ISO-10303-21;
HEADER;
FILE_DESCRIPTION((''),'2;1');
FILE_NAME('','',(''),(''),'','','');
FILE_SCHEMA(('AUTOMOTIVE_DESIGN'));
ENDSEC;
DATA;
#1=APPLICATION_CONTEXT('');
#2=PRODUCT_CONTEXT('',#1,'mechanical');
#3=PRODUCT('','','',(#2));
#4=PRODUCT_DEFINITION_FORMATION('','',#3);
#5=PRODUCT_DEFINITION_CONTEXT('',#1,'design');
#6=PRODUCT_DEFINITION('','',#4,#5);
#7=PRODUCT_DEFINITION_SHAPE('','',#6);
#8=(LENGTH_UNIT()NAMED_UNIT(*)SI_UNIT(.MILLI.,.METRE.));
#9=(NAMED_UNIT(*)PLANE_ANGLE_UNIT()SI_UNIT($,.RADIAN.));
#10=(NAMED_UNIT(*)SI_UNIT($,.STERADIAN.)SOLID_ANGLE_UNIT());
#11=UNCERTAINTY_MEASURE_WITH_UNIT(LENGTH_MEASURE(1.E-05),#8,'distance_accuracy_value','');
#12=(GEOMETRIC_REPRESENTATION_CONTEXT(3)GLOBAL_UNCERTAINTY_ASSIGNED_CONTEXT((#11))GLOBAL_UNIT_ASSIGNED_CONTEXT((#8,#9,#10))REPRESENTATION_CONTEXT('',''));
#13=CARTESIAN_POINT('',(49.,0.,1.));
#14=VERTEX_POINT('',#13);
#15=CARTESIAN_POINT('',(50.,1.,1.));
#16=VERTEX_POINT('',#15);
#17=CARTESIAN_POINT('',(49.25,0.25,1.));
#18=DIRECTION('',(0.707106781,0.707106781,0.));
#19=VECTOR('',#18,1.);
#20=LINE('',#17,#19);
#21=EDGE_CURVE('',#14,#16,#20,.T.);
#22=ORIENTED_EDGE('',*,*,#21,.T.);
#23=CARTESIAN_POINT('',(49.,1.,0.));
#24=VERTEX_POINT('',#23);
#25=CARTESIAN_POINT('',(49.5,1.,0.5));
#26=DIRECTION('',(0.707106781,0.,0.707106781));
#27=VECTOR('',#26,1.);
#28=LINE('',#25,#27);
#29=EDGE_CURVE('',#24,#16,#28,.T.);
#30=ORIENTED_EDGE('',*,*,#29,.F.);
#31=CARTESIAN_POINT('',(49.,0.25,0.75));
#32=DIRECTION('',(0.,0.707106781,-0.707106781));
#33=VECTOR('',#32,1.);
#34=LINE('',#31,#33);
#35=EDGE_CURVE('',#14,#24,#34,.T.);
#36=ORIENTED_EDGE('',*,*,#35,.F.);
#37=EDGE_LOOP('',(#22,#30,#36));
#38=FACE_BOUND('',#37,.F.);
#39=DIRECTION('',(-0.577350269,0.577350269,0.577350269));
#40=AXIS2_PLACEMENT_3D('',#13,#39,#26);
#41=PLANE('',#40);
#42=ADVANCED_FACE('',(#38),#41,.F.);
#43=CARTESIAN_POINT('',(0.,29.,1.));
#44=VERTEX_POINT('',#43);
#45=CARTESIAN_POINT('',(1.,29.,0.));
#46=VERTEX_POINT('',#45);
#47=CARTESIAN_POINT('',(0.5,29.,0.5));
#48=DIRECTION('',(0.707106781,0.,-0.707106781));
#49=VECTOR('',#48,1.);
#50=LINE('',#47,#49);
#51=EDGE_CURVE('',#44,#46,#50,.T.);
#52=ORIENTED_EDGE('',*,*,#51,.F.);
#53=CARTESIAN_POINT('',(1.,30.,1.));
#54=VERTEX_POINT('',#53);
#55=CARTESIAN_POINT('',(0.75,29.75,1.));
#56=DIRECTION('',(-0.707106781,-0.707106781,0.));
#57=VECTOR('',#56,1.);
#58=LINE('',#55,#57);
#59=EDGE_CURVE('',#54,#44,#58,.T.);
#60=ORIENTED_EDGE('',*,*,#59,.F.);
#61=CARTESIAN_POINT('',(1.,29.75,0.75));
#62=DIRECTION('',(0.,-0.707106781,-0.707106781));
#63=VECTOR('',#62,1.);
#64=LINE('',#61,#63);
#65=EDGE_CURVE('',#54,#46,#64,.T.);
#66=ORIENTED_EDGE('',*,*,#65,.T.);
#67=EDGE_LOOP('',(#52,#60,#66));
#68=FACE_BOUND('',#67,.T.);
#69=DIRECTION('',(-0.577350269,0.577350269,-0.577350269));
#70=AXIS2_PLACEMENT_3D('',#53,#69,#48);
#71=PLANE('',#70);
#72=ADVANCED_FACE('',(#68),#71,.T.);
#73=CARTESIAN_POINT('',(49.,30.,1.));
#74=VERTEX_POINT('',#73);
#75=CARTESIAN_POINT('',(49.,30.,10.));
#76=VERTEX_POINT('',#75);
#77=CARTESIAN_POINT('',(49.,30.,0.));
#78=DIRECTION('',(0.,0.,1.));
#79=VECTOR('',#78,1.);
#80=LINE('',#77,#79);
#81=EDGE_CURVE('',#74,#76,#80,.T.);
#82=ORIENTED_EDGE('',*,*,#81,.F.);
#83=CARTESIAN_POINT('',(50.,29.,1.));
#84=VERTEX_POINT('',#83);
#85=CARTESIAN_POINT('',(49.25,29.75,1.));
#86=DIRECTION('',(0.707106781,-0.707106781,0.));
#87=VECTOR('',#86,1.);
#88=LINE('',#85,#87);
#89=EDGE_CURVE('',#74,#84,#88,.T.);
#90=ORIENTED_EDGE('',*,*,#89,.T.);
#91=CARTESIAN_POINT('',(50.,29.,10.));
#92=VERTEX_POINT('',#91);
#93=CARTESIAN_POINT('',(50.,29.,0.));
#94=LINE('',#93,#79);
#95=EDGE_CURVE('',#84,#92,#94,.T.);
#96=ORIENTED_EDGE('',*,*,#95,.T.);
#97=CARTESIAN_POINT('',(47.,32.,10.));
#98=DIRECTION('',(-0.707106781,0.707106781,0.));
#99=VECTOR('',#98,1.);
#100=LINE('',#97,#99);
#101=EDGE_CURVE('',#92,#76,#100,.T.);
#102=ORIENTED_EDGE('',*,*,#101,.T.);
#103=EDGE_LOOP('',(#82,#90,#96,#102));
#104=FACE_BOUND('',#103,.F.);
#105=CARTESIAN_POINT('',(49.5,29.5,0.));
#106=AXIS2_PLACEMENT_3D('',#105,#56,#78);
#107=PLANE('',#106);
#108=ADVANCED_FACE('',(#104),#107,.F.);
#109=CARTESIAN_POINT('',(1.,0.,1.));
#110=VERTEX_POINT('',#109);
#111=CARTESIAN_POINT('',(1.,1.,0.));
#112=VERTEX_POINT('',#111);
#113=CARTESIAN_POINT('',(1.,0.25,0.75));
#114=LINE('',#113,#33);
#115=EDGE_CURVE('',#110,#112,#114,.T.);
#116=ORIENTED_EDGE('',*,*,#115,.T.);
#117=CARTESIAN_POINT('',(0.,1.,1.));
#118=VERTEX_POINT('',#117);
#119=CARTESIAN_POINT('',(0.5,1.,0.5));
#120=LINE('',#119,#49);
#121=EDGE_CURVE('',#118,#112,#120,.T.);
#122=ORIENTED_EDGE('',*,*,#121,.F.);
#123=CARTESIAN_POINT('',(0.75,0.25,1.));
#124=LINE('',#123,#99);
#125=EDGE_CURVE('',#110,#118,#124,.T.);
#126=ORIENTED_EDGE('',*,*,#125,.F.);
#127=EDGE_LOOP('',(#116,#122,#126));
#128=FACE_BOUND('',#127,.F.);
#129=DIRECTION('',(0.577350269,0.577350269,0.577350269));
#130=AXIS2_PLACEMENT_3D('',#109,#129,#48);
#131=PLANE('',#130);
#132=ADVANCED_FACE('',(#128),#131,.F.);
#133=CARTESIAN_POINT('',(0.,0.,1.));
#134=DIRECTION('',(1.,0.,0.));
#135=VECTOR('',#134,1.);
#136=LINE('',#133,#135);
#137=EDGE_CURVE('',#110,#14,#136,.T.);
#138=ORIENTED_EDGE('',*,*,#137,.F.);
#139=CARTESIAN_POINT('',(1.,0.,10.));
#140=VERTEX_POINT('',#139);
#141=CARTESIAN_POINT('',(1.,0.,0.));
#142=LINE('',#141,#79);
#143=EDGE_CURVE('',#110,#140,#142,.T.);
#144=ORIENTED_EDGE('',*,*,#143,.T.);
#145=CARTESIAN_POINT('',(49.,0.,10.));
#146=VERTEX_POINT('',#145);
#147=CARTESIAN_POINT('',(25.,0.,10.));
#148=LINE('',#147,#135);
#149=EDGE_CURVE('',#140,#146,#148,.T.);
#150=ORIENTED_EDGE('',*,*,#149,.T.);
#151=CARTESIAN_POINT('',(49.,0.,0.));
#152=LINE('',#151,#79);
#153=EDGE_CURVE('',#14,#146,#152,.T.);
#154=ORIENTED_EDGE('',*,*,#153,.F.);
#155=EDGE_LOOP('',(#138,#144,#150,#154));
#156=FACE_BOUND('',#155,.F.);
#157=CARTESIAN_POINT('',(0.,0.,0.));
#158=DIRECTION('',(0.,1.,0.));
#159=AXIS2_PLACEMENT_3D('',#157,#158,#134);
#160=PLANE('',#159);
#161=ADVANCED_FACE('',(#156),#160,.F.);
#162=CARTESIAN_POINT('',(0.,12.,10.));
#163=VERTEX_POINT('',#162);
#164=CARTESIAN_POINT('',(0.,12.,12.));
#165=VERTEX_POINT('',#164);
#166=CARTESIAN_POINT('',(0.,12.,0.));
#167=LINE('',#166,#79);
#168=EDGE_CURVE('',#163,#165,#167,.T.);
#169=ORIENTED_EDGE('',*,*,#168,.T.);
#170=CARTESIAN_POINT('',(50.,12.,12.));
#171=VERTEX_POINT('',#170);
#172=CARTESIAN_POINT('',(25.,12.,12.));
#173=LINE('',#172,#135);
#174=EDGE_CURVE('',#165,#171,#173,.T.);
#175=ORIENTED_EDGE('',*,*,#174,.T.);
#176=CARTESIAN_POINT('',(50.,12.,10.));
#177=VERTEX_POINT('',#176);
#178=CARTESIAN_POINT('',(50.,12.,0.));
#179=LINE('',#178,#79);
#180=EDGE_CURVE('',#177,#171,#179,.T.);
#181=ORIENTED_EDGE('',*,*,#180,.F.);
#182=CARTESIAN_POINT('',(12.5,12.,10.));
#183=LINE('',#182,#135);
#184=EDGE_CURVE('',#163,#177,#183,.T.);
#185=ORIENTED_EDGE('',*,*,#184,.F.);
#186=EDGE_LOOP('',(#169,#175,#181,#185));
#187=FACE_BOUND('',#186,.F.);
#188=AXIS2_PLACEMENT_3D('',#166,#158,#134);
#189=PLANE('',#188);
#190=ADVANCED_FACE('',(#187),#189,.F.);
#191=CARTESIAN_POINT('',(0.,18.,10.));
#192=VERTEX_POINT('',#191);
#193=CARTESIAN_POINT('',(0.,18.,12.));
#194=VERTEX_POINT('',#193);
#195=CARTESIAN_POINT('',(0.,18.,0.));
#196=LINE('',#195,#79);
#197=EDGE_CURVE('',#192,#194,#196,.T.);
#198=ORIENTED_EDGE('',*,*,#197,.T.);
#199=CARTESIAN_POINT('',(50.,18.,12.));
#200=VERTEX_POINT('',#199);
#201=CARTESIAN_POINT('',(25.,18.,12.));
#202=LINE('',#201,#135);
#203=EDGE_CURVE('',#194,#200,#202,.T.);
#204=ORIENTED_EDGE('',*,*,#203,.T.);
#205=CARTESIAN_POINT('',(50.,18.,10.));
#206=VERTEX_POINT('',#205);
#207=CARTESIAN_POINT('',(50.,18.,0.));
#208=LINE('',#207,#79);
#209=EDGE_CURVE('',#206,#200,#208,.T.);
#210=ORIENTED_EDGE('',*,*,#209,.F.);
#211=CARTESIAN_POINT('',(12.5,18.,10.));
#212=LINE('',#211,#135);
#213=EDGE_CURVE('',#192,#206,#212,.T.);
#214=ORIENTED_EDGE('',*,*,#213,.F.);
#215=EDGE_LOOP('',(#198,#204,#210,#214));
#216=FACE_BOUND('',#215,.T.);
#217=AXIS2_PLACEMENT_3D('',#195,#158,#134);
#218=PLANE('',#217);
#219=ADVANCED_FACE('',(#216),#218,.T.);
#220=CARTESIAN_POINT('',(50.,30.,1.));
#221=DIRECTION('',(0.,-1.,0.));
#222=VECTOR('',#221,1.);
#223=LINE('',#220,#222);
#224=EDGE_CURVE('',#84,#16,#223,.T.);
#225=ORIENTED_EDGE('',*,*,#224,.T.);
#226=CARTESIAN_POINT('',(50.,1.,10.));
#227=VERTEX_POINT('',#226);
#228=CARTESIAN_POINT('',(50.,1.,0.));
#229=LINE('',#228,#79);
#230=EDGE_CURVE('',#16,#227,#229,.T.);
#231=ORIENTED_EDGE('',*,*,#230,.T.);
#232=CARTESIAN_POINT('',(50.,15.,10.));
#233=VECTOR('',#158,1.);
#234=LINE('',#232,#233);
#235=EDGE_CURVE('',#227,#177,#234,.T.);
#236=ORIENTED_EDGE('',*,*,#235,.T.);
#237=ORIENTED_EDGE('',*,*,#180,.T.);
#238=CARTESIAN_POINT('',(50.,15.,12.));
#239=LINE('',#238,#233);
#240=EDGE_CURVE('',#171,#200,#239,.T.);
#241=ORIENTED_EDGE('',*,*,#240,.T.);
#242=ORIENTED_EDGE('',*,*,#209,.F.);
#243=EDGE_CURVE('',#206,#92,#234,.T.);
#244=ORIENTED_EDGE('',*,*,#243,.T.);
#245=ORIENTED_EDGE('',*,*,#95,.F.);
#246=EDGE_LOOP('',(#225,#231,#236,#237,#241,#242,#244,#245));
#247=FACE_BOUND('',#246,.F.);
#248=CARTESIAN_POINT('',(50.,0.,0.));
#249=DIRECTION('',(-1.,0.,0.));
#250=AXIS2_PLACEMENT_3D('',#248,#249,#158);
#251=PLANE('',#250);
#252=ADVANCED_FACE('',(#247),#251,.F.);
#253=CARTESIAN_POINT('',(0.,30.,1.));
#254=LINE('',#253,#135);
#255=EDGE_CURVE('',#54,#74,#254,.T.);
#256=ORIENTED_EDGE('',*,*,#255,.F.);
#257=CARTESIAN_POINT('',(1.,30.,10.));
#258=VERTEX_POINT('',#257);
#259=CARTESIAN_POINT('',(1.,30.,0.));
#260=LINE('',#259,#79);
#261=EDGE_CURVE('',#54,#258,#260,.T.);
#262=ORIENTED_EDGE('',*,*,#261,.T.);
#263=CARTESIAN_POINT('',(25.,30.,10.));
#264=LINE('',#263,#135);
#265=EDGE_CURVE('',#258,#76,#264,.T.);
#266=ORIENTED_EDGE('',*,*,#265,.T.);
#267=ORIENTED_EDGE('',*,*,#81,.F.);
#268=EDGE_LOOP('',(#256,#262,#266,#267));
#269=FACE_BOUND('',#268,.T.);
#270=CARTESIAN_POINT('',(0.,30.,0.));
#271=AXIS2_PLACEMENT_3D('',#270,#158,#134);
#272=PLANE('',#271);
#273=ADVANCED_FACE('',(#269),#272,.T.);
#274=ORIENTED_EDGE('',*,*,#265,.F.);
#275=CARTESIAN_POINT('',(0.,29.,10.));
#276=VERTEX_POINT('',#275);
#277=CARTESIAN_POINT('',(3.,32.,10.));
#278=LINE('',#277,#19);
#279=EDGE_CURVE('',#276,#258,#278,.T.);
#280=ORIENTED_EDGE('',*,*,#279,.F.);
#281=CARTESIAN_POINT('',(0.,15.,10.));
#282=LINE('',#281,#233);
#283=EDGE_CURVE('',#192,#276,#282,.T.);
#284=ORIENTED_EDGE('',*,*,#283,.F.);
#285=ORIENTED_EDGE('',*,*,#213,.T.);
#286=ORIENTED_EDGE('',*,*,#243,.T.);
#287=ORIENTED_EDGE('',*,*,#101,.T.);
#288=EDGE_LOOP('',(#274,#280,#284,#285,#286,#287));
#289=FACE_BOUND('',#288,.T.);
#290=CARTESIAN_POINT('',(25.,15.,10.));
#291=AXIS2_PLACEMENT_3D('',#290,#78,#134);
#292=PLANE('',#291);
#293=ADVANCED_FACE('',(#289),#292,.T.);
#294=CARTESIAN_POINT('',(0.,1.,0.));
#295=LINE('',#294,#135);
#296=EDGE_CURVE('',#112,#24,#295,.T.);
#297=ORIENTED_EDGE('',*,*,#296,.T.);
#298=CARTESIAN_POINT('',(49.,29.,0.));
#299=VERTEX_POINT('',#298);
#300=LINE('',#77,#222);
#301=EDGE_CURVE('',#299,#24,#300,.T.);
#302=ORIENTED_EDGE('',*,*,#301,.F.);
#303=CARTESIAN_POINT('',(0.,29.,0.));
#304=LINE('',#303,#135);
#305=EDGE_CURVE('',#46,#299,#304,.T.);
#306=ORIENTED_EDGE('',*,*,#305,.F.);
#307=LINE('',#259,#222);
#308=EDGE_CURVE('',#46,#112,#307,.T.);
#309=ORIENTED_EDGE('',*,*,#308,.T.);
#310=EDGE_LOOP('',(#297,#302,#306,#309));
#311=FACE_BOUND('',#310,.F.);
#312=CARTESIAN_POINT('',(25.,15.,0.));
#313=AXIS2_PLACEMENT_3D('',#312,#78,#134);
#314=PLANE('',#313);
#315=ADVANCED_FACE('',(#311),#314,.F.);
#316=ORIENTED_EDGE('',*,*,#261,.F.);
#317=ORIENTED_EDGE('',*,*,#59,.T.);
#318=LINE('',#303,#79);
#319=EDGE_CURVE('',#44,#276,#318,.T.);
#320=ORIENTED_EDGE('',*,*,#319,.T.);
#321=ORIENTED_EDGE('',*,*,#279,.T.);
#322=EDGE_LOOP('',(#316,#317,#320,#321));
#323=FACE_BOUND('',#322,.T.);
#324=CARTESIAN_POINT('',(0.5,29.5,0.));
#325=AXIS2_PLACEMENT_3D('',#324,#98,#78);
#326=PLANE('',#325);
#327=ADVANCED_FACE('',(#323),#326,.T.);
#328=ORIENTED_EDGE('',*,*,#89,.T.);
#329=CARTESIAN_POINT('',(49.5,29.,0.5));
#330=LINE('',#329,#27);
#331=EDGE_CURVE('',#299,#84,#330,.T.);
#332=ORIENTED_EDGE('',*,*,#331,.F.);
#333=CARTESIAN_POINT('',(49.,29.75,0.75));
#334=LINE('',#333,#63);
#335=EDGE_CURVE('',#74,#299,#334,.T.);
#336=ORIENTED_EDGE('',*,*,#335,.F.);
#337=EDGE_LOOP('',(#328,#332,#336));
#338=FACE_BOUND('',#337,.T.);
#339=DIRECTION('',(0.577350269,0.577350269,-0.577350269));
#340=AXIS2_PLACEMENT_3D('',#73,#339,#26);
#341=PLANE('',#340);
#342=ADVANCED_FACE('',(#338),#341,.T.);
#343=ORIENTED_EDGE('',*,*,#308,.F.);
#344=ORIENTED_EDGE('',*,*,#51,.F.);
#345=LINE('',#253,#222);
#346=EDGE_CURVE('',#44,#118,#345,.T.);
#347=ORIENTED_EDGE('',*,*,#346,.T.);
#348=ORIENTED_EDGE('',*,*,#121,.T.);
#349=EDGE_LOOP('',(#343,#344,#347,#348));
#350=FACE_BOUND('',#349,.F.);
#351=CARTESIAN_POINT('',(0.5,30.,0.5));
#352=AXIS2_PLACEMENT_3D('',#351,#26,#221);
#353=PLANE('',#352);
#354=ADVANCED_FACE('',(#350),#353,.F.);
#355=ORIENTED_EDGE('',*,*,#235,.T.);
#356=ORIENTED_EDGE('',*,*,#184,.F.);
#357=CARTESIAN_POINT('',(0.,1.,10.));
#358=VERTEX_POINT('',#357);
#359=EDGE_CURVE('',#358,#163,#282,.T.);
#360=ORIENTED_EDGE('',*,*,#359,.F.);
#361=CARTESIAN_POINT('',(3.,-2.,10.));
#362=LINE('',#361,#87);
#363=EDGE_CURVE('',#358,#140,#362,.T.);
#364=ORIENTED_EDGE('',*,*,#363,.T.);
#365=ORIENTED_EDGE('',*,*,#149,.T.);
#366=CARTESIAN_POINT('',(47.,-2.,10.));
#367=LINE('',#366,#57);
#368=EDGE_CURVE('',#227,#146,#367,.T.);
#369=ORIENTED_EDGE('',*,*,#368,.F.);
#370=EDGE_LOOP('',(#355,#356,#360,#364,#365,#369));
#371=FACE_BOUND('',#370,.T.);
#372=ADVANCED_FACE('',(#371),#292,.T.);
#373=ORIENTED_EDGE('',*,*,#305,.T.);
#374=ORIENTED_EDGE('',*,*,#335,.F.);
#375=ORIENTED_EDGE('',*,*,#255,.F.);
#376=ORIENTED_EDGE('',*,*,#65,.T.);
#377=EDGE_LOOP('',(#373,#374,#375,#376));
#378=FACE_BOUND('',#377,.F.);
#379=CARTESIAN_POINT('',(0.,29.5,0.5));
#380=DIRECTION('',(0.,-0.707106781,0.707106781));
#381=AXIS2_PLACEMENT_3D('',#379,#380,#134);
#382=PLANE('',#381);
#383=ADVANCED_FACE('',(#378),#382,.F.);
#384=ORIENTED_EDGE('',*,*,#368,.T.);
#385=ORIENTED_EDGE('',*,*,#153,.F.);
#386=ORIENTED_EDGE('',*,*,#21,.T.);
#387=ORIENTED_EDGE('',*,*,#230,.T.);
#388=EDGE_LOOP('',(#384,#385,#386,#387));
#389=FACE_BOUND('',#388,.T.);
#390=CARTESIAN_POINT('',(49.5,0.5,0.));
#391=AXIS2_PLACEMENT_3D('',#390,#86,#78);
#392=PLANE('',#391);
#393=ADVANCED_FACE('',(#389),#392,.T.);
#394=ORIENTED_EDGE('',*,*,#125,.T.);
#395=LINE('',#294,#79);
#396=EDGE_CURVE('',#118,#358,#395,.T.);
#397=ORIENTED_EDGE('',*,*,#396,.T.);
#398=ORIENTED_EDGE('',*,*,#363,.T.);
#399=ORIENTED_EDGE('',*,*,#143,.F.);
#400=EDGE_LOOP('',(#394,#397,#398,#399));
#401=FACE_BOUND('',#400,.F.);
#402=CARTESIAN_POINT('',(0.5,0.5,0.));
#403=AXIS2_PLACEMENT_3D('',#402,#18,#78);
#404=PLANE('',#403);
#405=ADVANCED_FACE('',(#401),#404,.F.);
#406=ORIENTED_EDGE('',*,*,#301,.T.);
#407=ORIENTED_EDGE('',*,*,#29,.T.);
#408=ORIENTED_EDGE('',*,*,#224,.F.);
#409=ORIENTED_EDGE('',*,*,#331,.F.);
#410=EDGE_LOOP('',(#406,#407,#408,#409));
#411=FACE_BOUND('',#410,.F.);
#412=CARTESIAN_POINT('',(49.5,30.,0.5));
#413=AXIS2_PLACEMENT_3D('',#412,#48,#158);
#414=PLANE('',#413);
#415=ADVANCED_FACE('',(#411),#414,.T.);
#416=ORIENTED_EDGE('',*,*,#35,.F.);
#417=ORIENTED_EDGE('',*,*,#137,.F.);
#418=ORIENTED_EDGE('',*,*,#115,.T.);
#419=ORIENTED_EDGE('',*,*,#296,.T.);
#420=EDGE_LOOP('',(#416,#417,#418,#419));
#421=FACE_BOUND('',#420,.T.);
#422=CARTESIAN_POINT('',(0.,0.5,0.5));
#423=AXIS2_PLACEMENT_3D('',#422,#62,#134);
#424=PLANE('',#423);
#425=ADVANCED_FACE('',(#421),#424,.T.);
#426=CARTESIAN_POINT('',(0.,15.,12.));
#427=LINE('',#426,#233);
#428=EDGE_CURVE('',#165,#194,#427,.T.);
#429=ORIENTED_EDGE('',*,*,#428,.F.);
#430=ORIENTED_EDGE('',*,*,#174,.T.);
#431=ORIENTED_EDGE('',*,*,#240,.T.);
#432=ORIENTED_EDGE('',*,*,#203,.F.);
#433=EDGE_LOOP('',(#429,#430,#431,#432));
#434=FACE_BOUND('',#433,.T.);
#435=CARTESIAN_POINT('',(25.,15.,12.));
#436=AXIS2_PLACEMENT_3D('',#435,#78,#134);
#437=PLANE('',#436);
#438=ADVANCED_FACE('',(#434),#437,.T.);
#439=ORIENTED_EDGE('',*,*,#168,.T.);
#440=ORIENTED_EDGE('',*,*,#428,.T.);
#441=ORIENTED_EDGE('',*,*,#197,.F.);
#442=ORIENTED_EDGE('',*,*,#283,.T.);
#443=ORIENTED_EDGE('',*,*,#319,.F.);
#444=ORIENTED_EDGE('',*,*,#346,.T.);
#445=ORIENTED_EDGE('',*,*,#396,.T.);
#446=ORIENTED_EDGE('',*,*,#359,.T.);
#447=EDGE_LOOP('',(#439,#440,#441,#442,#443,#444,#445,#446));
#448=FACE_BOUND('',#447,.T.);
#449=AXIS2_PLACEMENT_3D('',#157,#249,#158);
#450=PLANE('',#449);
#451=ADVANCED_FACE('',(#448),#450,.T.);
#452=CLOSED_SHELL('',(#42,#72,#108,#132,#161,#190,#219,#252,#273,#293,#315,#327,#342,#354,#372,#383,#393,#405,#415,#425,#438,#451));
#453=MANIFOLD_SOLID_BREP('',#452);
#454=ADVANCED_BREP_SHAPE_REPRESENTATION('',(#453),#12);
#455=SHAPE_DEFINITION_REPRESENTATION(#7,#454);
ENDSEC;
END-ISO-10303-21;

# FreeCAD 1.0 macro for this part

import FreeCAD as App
import Part
import Sketcher
Q = App.Units.Quantity


def edges_at(feature, points):
    """Names of the edges that pass closest to the given points."""
    edges = feature.Shape.Edges
    near = lambda p: min(range(len(edges)), key=lambda i: edges[i].distToShape(Part.Vertex(*p))[0])
    return sorted({f"Edge{near(p) + 1}" for p in points})


def add_polygon(sketch, points):
    """Adds a closed chain of lines whose ends are joined by coincident constraints."""
    first, n = sketch.GeometryCount, len(points)
    for a, b in zip(points, points[1:] + points[:1]):
        sketch.addGeometry(Part.LineSegment(App.Vector(*a, 0), App.Vector(*b, 0)), False)
    for i in range(n):
        sketch.addConstraint(Sketcher.Constraint("Coincident", first + i, 2, first + (i + 1) % n, 1))

doc = App.newDocument("Part")
body = doc.addObject("PartDesign::Body", "Body")

sketch1 = body.newObject("Sketcher::SketchObject", "Sketch")
sketch1.AttachmentSupport = (doc.getObject("XY_Plane"), [""])
sketch1.MapMode = "FlatFace"
add_polygon(sketch1, [(0, 30), (0, 0), (50, 0), (50, 30)])
sketch1.addConstraint([
    Sketcher.Constraint("Vertical", 0),
    Sketcher.Constraint("Horizontal", 1),
    Sketcher.Constraint("Vertical", 2),
    Sketcher.Constraint("Horizontal", 3),
    Sketcher.Constraint("Coincident", 0, 2, -1, 1),
    Sketcher.Constraint("DistanceX", 1, 1, 1, 2, Q("50 mm")),
    Sketcher.Constraint("DistanceY", 0, 2, 0, 1, Q("30 mm")),
])
pad1 = body.newObject("PartDesign::Pad", "Pad")
pad1.Profile = sketch1
pad1.Length = 10
body2 = doc.addObject("PartDesign::Body", "Body001")

sketch2 = body2.newObject("Sketcher::SketchObject", "Sketch001")
sketch2.AttachmentSupport = (doc.getObject("XY_Plane001"), [""])
sketch2.MapMode = "FlatFace"
add_polygon(sketch2, [(0, 18), (0, 12), (50, 12), (50, 18)])
sketch2.addConstraint([
    Sketcher.Constraint("Vertical", 0),
    Sketcher.Constraint("Horizontal", 1),
    Sketcher.Constraint("Vertical", 2),
    Sketcher.Constraint("Horizontal", 3),
    Sketcher.Constraint("PointOnObject", 0, 2, -2),
    Sketcher.Constraint("DistanceX", 1, 1, 1, 2, Q("50 mm")),
    Sketcher.Constraint("DistanceY", 0, 2, 0, 1, Q("6 mm")),
    Sketcher.Constraint("DistanceY", -1, 1, 0, 2, Q("12 mm")),
])
pad2 = body2.newObject("PartDesign::Pad", "Pad001")
pad2.Profile = sketch2
pad2.Length = 12
doc.recompute()

boolean = body2.newObject("PartDesign::Boolean", "Boolean")
boolean.Type = "Fuse"
boolean.addObjects([body])
doc.recompute()

chamfer = body2.newObject("PartDesign::Chamfer", "Chamfer")
chamfer.Base = (boolean, edges_at(boolean, [
    (0, 15, 0),
    (0, 15, 0),
    (0, 0, 5),
    (0, 30, 5),
    (0, 15, 0),
    (50, 15, 0),
    (50, 15, 0),
    (25, 0, 0),
    (50, 0, 5),
    (25, 30, 0),
    (50, 30, 5),
    (50, 15, 0),
]))
chamfer.Size = 1

doc.recompute()
